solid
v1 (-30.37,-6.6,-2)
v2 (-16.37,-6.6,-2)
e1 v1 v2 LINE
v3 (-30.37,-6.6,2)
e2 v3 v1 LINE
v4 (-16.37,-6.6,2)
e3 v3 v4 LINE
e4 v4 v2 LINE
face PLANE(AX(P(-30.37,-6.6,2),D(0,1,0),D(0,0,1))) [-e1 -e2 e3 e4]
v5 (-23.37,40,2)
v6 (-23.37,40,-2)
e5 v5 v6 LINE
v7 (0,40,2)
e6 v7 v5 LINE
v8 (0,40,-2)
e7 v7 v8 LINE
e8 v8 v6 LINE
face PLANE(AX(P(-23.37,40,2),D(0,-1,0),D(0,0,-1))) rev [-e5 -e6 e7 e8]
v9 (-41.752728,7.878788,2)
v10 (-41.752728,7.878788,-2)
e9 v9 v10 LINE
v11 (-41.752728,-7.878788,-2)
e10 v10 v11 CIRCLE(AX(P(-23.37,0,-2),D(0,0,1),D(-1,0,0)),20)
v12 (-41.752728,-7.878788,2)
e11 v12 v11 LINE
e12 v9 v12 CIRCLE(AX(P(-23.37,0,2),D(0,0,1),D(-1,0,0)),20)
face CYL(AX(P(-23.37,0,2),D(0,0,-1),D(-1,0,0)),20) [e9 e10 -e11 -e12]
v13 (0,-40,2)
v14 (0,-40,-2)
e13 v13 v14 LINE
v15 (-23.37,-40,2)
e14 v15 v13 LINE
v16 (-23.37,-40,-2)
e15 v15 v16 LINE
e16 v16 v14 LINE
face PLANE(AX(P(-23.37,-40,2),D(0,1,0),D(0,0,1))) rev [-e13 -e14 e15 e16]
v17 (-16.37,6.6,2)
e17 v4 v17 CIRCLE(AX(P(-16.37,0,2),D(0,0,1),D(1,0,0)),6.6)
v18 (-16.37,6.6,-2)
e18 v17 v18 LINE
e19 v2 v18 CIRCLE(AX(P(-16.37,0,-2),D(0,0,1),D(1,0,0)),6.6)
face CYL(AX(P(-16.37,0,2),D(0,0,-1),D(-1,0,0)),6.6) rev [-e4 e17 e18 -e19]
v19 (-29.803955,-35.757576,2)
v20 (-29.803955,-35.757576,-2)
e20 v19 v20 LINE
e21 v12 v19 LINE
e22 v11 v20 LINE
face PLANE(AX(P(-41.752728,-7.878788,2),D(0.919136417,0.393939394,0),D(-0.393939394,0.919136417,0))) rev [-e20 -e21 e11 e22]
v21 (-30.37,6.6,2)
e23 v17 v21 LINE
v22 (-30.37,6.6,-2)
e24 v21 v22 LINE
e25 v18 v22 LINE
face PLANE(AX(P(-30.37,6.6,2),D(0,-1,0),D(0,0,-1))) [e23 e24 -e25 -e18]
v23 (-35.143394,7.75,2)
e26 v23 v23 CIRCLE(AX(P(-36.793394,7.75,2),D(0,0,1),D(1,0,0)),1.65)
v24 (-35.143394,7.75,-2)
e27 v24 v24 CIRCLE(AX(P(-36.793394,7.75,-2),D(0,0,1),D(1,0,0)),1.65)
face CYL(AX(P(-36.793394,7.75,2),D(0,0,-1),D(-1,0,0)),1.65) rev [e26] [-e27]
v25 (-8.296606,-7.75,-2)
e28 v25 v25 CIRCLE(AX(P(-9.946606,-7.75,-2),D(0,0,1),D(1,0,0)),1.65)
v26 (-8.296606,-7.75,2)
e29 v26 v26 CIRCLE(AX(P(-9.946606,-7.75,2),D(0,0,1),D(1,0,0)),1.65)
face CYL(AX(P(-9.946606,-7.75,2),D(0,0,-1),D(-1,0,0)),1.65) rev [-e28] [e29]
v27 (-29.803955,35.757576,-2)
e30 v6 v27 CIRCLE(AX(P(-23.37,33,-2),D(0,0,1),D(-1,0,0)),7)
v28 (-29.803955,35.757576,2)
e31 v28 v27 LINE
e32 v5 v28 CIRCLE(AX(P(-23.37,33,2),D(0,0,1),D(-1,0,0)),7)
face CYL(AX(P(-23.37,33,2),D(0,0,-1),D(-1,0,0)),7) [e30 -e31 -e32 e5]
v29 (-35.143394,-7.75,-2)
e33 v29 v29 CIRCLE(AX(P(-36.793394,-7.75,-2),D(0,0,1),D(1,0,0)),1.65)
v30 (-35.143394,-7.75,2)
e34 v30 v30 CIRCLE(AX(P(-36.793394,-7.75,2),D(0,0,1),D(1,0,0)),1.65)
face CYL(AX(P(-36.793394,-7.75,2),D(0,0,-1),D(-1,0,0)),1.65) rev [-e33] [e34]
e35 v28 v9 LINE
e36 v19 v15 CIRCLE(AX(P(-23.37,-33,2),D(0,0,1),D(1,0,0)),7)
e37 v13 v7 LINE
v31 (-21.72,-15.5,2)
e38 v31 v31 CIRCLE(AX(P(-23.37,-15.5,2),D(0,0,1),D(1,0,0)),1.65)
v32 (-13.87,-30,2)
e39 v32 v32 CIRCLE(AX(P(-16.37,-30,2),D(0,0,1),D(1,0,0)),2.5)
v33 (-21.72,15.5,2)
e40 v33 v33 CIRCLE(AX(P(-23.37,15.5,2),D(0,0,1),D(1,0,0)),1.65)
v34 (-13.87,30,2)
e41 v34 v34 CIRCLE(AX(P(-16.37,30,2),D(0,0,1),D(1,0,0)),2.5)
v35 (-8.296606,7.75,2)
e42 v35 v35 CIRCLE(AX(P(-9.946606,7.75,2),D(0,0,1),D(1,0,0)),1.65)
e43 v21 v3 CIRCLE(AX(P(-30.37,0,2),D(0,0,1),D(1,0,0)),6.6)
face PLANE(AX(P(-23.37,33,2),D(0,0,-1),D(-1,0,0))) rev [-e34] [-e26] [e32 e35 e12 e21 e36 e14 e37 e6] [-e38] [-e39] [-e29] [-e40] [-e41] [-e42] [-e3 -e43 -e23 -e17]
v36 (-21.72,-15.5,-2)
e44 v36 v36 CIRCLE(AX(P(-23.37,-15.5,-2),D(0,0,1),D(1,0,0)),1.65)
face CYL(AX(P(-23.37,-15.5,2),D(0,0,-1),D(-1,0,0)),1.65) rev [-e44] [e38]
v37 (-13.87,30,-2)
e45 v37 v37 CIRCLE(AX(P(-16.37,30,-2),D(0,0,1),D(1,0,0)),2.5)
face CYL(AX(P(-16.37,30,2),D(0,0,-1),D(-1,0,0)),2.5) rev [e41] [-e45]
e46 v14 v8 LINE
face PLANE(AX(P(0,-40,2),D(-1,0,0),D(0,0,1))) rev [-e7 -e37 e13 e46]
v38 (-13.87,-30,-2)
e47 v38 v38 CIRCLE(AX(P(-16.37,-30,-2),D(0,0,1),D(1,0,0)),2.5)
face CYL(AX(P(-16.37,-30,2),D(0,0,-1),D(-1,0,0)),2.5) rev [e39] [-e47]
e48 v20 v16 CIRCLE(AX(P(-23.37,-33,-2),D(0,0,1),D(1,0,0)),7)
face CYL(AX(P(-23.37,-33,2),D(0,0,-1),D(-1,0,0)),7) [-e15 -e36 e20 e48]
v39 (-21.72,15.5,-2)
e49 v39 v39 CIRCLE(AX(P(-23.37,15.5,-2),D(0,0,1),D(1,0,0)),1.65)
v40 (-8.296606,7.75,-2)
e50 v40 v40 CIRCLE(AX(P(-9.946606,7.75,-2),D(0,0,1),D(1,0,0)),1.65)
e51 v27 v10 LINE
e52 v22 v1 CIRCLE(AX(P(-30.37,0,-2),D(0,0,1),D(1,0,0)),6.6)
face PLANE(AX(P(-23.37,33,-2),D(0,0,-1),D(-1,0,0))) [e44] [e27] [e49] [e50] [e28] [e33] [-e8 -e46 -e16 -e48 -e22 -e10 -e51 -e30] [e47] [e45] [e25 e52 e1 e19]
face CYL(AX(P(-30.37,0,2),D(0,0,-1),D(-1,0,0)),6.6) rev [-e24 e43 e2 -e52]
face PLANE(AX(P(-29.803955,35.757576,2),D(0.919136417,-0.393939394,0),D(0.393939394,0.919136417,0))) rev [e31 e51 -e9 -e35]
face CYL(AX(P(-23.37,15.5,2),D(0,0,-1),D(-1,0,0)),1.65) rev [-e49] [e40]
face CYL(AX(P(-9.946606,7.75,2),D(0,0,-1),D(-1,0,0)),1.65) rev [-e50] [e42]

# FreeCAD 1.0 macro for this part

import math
import FreeCAD as App
import Part
import Sketcher

V = App.Vector
Q = App.Units.Quantity

doc = App.newDocument("Part")
body = doc.addObject("PartDesign::Body", "Body")

sketch1 = doc.addObject("Sketcher::SketchObject", "Sketch")
body.addObject(sketch1)
sketch1.AttachmentSupport = (doc.XY_Plane, [""])
sketch1.MapMode = "FlatFace"
sketch1.addGeometry([
    Part.LineSegment(V(0, -40, 0), V(0, 40, 0)),
    Part.LineSegment(V(0, 40, 0), V(-23.37, 40, 0)),
    Part.ArcOfCircle(Part.Circle(V(-23.37, 33, 0), V(0, 0, 1), 7), math.radians(90), math.radians(156.800157)),
    Part.LineSegment(V(-29.803955, 35.757576, 0), V(-41.752728, 7.878788, 0)),
    Part.ArcOfCircle(Part.Circle(V(-23.37, 0, 0), V(0, 0, 1), 20), math.radians(156.800157), math.radians(203.199843)),
    Part.LineSegment(V(-41.752728, -7.878788, 0), V(-29.803955, -35.757576, 0)),
    Part.ArcOfCircle(Part.Circle(V(-23.37, -33, 0), V(0, 0, 1), 7), math.radians(-156.800157), math.radians(-90)),
    Part.LineSegment(V(-23.37, -40, 0), V(0, -40, 0)),
    Part.Circle(V(-36.793394, -7.75, 0), V(0, 0, 1), 1.65),
    Part.Circle(V(-23.37, -15.5, 0), V(0, 0, 1), 1.65),
    Part.Circle(V(-16.37, -30, 0), V(0, 0, 1), 2.5),
    Part.Circle(V(-9.946606, -7.75, 0), V(0, 0, 1), 1.65),
    Part.Circle(V(-36.793394, 7.75, 0), V(0, 0, 1), 1.65),
    Part.Circle(V(-23.37, 15.5, 0), V(0, 0, 1), 1.65),
    Part.ArcOfCircle(Part.Circle(V(-30.37, 0, 0), V(0, 0, 1), 6.6), math.radians(90), math.radians(270)),
    Part.LineSegment(V(-30.37, 6.6, 0), V(-16.37, 6.6, 0)),
    Part.ArcOfCircle(Part.Circle(V(-16.37, 0, 0), V(0, 0, 1), 6.6), math.radians(-90), math.radians(90)),
    Part.LineSegment(V(-16.37, -6.6, 0), V(-30.37, -6.6, 0)),
    Part.Circle(V(-9.946606, 7.75, 0), V(0, 0, 1), 1.65),
    Part.Circle(V(-16.37, 30, 0), V(0, 0, 1), 2.5),
], False)
sketch1.addConstraint([
    Sketcher.Constraint("Coincident", 0, 2, 1, 1),
    Sketcher.Constraint("Tangent", 1, 2, 2, 1),
    Sketcher.Constraint("Tangent", 2, 2, 3, 1),
    Sketcher.Constraint("Tangent", 3, 2, 4, 1),
    Sketcher.Constraint("Tangent", 4, 2, 5, 1),
    Sketcher.Constraint("Tangent", 5, 2, 6, 1),
    Sketcher.Constraint("Tangent", 6, 2, 7, 1),
    Sketcher.Constraint("Coincident", 7, 2, 0, 1),
    Sketcher.Constraint("Tangent", 14, 1, 15, 1),
    Sketcher.Constraint("Tangent", 15, 2, 16, 2),
    Sketcher.Constraint("Tangent", 16, 1, 17, 1),
    Sketcher.Constraint("Tangent", 17, 2, 14, 2),
    Sketcher.Constraint("Vertical", 0),
    Sketcher.Constraint("Horizontal", 1),
    Sketcher.Constraint("Horizontal", 7),
    Sketcher.Constraint("Horizontal", 15),
    Sketcher.Constraint("Horizontal", 17),
    Sketcher.Constraint("Equal", 2, 6),
    Sketcher.Constraint("Equal", 8, 9),
    Sketcher.Constraint("Equal", 9, 11),
    Sketcher.Constraint("Equal", 11, 12),
    Sketcher.Constraint("Equal", 12, 13),
    Sketcher.Constraint("Equal", 13, 18),
    Sketcher.Constraint("Equal", 10, 19),
    Sketcher.Constraint("Symmetric", 0, 2, 7, 2, -1, 1),
    Sketcher.Constraint("Symmetric", 8, 3, 12, 3, -1),
    Sketcher.Constraint("Symmetric", 9, 3, 13, 3, -1),
    Sketcher.Constraint("Symmetric", 11, 3, 18, 3, -1),
    Sketcher.Constraint("Symmetric", 10, 3, 19, 3, -1),
    Sketcher.Constraint("Symmetric", 3, 2, 4, 2, -1),
    Sketcher.Constraint("PointOnObject", 14, 3, -1),
    Sketcher.Constraint("Horizontal", 8, 3, 11, 3),
    Sketcher.Constraint("Vertical", 2, 3, 4, 3),
    Sketcher.Constraint("Vertical", 6, 3, 9, 3),
    Sketcher.Constraint("Vertical", 10, 3, 16, 3),
    Sketcher.Constraint("Diameter", 10, Q("5 mm")),
    Sketcher.Constraint("Radius", 2, Q("7 mm")),
    Sketcher.Constraint("Radius", 4, Q("20 mm")),
    Sketcher.Constraint("Diameter", 8, Q("3.3 mm")),
    Sketcher.Constraint("Radius", 14, Q("6.6 mm")),
    Sketcher.Constraint("DistanceX", 15, 1, 15, 2, Q("14 mm")),
    Sketcher.Constraint("DistanceY", 0, 1, 0, 2, Q("80 mm")),
    Sketcher.Constraint("DistanceY", 10, 3, -1, 1, Q("30 mm")),
    Sketcher.Constraint("DistanceX", 6, 3, 10, 3, Q("7 mm")),
    Sketcher.Constraint("DistanceX", 1, 2, 1, 1, Q("23.37 mm")),
    Sketcher.Constraint("DistanceY", 9, 3, -1, 1, Q("15.5 mm")),
    Sketcher.Constraint("DistanceY", 8, 3, 12, 3, Q("15.5 mm")),
    Sketcher.Constraint("DistanceX", 12, 3, 2, 2, Q("6.989439 mm")),
    Sketcher.Constraint("DistanceX", 11, 3, -1, 1, Q("9.946606 mm")),
])
pad1 = doc.addObject("PartDesign::Pad", "Pad")
body.addObject(pad1)
pad1.Profile = sketch1
pad1.Length = 4
pad1.Midplane = True

doc.recompute()
